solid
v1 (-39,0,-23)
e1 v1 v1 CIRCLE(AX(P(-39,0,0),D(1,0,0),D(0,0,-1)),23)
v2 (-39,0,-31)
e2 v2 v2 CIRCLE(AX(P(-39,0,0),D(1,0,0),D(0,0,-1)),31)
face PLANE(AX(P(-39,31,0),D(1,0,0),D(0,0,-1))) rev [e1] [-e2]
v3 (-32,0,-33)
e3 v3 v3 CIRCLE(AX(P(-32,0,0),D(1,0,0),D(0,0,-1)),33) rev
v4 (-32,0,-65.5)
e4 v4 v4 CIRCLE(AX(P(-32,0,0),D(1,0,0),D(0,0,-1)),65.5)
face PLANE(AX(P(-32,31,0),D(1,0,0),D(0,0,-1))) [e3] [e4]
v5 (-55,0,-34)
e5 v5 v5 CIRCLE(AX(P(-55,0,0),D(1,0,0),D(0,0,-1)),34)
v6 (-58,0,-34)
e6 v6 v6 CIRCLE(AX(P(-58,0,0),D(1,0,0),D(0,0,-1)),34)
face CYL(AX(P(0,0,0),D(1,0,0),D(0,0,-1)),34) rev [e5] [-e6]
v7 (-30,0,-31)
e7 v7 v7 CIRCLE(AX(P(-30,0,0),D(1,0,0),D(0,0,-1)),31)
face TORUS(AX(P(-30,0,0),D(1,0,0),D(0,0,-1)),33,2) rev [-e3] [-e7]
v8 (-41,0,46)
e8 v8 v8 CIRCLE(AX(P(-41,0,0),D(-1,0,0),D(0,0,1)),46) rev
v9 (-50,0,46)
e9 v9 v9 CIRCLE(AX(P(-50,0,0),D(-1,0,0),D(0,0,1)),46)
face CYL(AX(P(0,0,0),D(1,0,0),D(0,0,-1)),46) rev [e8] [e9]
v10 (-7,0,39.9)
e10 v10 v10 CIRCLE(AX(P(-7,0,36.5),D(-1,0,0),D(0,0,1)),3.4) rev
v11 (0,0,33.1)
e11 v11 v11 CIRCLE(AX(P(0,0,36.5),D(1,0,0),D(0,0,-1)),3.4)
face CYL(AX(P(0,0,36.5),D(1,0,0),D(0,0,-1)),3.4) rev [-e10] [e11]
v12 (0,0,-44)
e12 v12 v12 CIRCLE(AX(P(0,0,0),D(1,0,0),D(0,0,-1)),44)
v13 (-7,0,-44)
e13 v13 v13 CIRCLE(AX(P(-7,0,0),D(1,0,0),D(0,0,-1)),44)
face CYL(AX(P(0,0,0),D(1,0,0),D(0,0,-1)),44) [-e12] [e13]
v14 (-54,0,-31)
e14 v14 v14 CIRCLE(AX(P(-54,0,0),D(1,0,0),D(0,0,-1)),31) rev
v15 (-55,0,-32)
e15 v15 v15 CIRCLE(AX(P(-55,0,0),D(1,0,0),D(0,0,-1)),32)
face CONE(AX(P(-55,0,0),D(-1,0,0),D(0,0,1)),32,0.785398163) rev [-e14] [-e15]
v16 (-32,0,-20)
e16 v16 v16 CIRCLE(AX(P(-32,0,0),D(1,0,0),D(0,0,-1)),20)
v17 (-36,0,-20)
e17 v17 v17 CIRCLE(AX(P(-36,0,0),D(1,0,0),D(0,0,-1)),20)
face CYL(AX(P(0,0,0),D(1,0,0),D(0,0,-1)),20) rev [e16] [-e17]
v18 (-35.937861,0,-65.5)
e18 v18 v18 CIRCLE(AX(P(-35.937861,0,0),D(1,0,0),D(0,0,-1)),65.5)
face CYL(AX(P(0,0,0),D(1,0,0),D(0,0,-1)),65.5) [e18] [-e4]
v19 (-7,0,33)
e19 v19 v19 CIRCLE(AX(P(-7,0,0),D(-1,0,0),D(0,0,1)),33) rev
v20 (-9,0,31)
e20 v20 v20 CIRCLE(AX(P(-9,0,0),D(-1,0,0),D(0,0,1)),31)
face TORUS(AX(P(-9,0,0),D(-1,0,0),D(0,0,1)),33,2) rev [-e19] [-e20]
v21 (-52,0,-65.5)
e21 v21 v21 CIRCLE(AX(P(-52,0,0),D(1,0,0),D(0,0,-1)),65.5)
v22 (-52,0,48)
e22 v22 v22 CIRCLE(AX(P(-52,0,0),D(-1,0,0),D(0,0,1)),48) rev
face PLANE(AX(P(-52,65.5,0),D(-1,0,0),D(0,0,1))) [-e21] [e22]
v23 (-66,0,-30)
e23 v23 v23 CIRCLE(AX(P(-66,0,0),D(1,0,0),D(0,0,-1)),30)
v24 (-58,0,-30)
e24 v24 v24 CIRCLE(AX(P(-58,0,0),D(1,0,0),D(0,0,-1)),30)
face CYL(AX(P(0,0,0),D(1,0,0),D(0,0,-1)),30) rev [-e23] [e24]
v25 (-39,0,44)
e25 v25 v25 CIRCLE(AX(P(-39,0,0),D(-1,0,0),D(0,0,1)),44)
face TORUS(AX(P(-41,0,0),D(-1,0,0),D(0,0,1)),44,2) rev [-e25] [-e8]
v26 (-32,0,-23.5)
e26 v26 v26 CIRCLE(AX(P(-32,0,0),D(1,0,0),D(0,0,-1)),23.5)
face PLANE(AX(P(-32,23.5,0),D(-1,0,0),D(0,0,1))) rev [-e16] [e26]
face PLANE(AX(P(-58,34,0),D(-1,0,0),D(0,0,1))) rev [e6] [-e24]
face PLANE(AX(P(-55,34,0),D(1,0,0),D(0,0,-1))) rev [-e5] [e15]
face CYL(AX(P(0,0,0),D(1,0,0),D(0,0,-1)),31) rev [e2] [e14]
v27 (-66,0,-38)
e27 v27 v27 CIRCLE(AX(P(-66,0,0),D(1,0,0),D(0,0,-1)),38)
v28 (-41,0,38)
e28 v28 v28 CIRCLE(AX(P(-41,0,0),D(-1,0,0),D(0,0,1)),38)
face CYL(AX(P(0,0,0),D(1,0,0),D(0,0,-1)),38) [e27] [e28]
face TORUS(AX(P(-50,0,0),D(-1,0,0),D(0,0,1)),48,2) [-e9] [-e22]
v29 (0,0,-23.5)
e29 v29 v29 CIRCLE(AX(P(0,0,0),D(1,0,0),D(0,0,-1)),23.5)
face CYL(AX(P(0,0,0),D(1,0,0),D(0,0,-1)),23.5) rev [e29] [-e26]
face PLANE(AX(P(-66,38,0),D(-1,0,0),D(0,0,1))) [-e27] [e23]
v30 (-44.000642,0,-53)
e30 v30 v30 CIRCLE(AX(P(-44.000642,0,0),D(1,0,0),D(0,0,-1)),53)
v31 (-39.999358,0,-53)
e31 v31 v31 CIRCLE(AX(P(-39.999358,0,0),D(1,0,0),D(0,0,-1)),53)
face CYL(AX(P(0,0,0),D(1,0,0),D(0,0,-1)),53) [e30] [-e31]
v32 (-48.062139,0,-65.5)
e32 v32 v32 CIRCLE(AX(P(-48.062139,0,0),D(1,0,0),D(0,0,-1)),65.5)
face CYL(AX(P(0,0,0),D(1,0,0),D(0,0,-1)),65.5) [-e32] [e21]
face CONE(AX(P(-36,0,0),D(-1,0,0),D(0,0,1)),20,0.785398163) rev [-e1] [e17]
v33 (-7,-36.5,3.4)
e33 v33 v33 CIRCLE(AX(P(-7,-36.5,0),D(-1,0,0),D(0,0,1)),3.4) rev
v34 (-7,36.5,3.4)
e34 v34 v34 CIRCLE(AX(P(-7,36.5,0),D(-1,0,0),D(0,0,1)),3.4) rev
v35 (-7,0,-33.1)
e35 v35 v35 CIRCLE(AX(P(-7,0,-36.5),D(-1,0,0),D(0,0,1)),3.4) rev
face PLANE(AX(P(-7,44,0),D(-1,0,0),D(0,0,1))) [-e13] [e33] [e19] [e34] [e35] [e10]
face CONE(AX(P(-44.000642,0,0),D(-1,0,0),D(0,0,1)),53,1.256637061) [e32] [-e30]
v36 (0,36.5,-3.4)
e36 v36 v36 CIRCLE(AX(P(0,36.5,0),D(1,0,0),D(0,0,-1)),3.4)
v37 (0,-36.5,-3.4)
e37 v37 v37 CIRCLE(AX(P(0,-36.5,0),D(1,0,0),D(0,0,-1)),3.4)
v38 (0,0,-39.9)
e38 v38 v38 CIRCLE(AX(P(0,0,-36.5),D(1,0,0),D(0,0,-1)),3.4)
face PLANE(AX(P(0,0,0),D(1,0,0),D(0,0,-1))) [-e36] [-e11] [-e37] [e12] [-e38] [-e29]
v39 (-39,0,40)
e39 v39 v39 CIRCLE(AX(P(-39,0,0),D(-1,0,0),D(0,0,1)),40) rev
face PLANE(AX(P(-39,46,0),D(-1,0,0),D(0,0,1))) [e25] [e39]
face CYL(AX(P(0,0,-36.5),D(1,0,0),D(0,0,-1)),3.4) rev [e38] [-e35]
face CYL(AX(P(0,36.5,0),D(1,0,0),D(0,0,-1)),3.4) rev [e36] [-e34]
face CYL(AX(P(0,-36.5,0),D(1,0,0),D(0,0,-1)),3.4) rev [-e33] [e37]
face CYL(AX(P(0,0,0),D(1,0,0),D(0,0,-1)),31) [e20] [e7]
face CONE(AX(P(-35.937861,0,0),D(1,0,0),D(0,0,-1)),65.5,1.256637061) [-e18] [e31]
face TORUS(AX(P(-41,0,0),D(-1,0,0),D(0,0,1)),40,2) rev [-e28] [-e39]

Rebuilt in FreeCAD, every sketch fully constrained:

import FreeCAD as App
import Part
import Sketcher
from FreeCAD import Vector
Q = App.Units.Quantity


def edges_at(feature, points):
    """Names of the edges that pass closest to the given points."""
    edges = feature.Shape.Edges
    near = lambda p: min(range(len(edges)), key=lambda i: edges[i].distToShape(Part.Vertex(*p))[0])
    return sorted({f"Edge{near(p) + 1}" for p in points})

doc = App.newDocument("Part")
body = doc.addObject("PartDesign::Body", "Body")

sketch1 = body.newObject("Sketcher::SketchObject", "Sketch")
sketch1.AttachmentSupport = (doc.getObject("XY_Plane"), [""])
sketch1.MapMode = "FlatFace"
sketch1.addGeometry([
    Part.LineSegment(Vector(0, 0, 0), Vector(0, 44, 0)),
    Part.LineSegment(Vector(0, 44, 0), Vector(-7, 44, 0)),
    Part.LineSegment(Vector(-7, 44, 0), Vector(-7, 31, 0)),
    Part.LineSegment(Vector(-7, 31, 0), Vector(-32, 31, 0)),
    Part.LineSegment(Vector(-32, 31, 0), Vector(-32, 65.5, 0)),
    Part.LineSegment(Vector(-32, 65.5, 0), Vector(-35.9, 65.5, 0)),
    Part.LineSegment(Vector(-35.9, 65.5, 0), Vector(-40, 53, 0)),
    Part.LineSegment(Vector(-40, 53, 0), Vector(-44, 53, 0)),
    Part.LineSegment(Vector(-44, 53, 0), Vector(-48.1, 65.5, 0)),
    Part.LineSegment(Vector(-48.1, 65.5, 0), Vector(-52, 65.5, 0)),
    Part.LineSegment(Vector(-52, 65.5, 0), Vector(-52, 46, 0)),
    Part.LineSegment(Vector(-52, 46, 0), Vector(-39, 46, 0)),
    Part.LineSegment(Vector(-39, 46, 0), Vector(-39, 38, 0)),
    Part.LineSegment(Vector(-39, 38, 0), Vector(-66, 38, 0)),
    Part.LineSegment(Vector(-66, 38, 0), Vector(-66, 0, 0)),
    Part.LineSegment(Vector(-66, 0, 0), Vector(0, 0, 0)),
], False)
sketch1.addConstraint([
    Sketcher.Constraint("Coincident", 0, 2, 1, 1),
    Sketcher.Constraint("Coincident", 1, 2, 2, 1),
    Sketcher.Constraint("Coincident", 2, 2, 3, 1),
    Sketcher.Constraint("Coincident", 3, 2, 4, 1),
    Sketcher.Constraint("Coincident", 4, 2, 5, 1),
    Sketcher.Constraint("Coincident", 5, 2, 6, 1),
    Sketcher.Constraint("Coincident", 6, 2, 7, 1),
    Sketcher.Constraint("Coincident", 7, 2, 8, 1),
    Sketcher.Constraint("Coincident", 8, 2, 9, 1),
    Sketcher.Constraint("Coincident", 9, 2, 10, 1),
    Sketcher.Constraint("Coincident", 10, 2, 11, 1),
    Sketcher.Constraint("Coincident", 11, 2, 12, 1),
    Sketcher.Constraint("Coincident", 12, 2, 13, 1),
    Sketcher.Constraint("Coincident", 13, 2, 14, 1),
    Sketcher.Constraint("Coincident", 14, 2, 15, 1),
    Sketcher.Constraint("Coincident", 15, 2, 0, 1),
    Sketcher.Constraint("Vertical", 0),
    Sketcher.Constraint("Horizontal", 1),
    Sketcher.Constraint("Vertical", 2),
    Sketcher.Constraint("Horizontal", 3),
    Sketcher.Constraint("Vertical", 4),
    Sketcher.Constraint("Horizontal", 5),
    Sketcher.Constraint("Horizontal", 7),
    Sketcher.Constraint("Horizontal", 9),
    Sketcher.Constraint("Vertical", 10),
    Sketcher.Constraint("Horizontal", 11),
    Sketcher.Constraint("Vertical", 12),
    Sketcher.Constraint("Horizontal", 13),
    Sketcher.Constraint("Vertical", 14),
    Sketcher.Constraint("Horizontal", 15),
    Sketcher.Constraint("Coincident", 15, 2, -1, 1),
    Sketcher.Constraint("Horizontal", 5, 2, 8, 2),
    Sketcher.Constraint("Equal", 5, 9),
    Sketcher.Constraint("Equal", 11, 2),
    Sketcher.Constraint("Equal", 6, 8),
    Sketcher.Constraint("DistanceX", 1, 2, 1, 1, 7.0),
    Sketcher.Constraint("DistanceX", 3, 2, 3, 1, 25.0),
    Sketcher.Constraint("DistanceX", 11, 1, 11, 2, 13.0),
    Sketcher.Constraint("DistanceX", 13, 2, 13, 1, 27.0),
    Sketcher.Constraint("DistanceX", 15, 1, 15, 2, 66.0),
    Sketcher.Constraint("DistanceY", 0, 1, 0, 2, 44.0),
    Sketcher.Constraint("DistanceY", 12, 2, 12, 1, 8.0),
    Sketcher.Constraint("DistanceY", 14, 2, 14, 1, 38.0),
    Sketcher.Constraint("Angle", 6, Q("-108 deg")),
    Sketcher.Constraint("DistanceY", 4, 1, 4, 2, 34.5),
    Sketcher.Constraint("DistanceY", -1, 1, 6, 2, 53.0),
    Sketcher.Constraint("DistanceX", 5, 2, 5, 1, 3.937861),
])
revolution = body.newObject("PartDesign::Revolution", "Revolution")
revolution.Profile = sketch1
revolution.ReferenceAxis = (sketch1, ["H_Axis"])
revolution.Angle = 360

sketch2 = body.newObject("Sketcher::SketchObject", "Sketch001")
sketch2.AttachmentSupport = (doc.getObject("XY_Plane"), [""])
sketch2.MapMode = "FlatFace"
sketch2.addGeometry([
    Part.LineSegment(Vector(0, 0, 0), Vector(0, 23.5, 0)),
    Part.LineSegment(Vector(0, 23.5, 0), Vector(-32, 23.5, 0)),
    Part.LineSegment(Vector(-32, 23.5, 0), Vector(-32, 20, 0)),
    Part.LineSegment(Vector(-32, 20, 0), Vector(-36, 20, 0)),
    Part.LineSegment(Vector(-36, 20, 0), Vector(-39, 23, 0)),
    Part.LineSegment(Vector(-39, 23, 0), Vector(-39, 31, 0)),
    Part.LineSegment(Vector(-39, 31, 0), Vector(-55, 31, 0)),
    Part.LineSegment(Vector(-55, 31, 0), Vector(-55, 34, 0)),
    Part.LineSegment(Vector(-55, 34, 0), Vector(-58, 34, 0)),
    Part.LineSegment(Vector(-58, 34, 0), Vector(-58, 30, 0)),
    Part.LineSegment(Vector(-58, 30, 0), Vector(-66, 30, 0)),
    Part.LineSegment(Vector(-66, 30, 0), Vector(-66, 0, 0)),
    Part.LineSegment(Vector(-66, 0, 0), Vector(0, 0, 0)),
], False)
sketch2.addConstraint([
    Sketcher.Constraint("Coincident", 0, 2, 1, 1),
    Sketcher.Constraint("Coincident", 1, 2, 2, 1),
    Sketcher.Constraint("Coincident", 2, 2, 3, 1),
    Sketcher.Constraint("Coincident", 3, 2, 4, 1),
    Sketcher.Constraint("Coincident", 4, 2, 5, 1),
    Sketcher.Constraint("Coincident", 5, 2, 6, 1),
    Sketcher.Constraint("Coincident", 6, 2, 7, 1),
    Sketcher.Constraint("Coincident", 7, 2, 8, 1),
    Sketcher.Constraint("Coincident", 8, 2, 9, 1),
    Sketcher.Constraint("Coincident", 9, 2, 10, 1),
    Sketcher.Constraint("Coincident", 10, 2, 11, 1),
    Sketcher.Constraint("Coincident", 11, 2, 12, 1),
    Sketcher.Constraint("Coincident", 12, 2, 0, 1),
    Sketcher.Constraint("Vertical", 0),
    Sketcher.Constraint("Horizontal", 1),
    Sketcher.Constraint("Vertical", 2),
    Sketcher.Constraint("Horizontal", 3),
    Sketcher.Constraint("Vertical", 5),
    Sketcher.Constraint("Horizontal", 6),
    Sketcher.Constraint("Vertical", 7),
    Sketcher.Constraint("Horizontal", 8),
    Sketcher.Constraint("Vertical", 9),
    Sketcher.Constraint("Horizontal", 10),
    Sketcher.Constraint("Vertical", 11),
    Sketcher.Constraint("Horizontal", 12),
    Sketcher.Constraint("Coincident", 12, 2, -1, 1),
    Sketcher.Constraint("Equal", 10, 5),
    Sketcher.Constraint("Equal", 8, 7),
    Sketcher.Constraint("Equal", 3, 9),
    Sketcher.Constraint("DistanceX", 1, 2, 1, 1, 32.0),
    Sketcher.Constraint("DistanceX", 3, 2, 3, 1, 4.0),
    Sketcher.Constraint("DistanceX", 6, 2, 6, 1, 16.0),
    Sketcher.Constraint("DistanceX", 8, 2, 8, 1, 3.0),
    Sketcher.Constraint("DistanceX", 10, 2, 10, 1, 8.0),
    Sketcher.Constraint("DistanceX", 12, 1, 12, 2, 66.0),
    Sketcher.Constraint("DistanceY", 11, 2, 11, 1, 30.0),
    Sketcher.Constraint("Angle", 4, Q("135 deg")),
    Sketcher.Constraint("DistanceY", 0, 1, 0, 2, 23.5),
])
groove = body.newObject("PartDesign::Groove", "Groove")
groove.Profile = sketch2
groove.ReferenceAxis = (sketch2, ["H_Axis"])
groove.Angle = 360
doc.recompute()

chamfer = body.newObject("PartDesign::Chamfer", "Chamfer")
chamfer.Base = (groove, edges_at(groove, [(-55, 0, 31)]))
chamfer.Size = 1
doc.recompute()

fillet = body.newObject("PartDesign::Fillet", "Fillet")
fillet.Base = (chamfer, edges_at(chamfer, [
    (-39, 0, 38),
    (-39, 0, 46),
    (-52, 0, 46),
    (-32, 0, 31),
    (-7, 0, 31),
]))
fillet.Radius = 2

sketch3 = body.newObject("Sketcher::SketchObject", "Sketch002")
sketch3.AttachmentSupport = (doc.getObject("XZ_Plane"), [""])
sketch3.MapMode = "FlatFace"
sketch3.AttachmentOffset = App.Placement(Vector(0, 0, -36.5), App.Rotation())
sketch3.addGeometry([
    Part.LineSegment(Vector(-9, 0, 0), Vector(0, 0, 0)),
    Part.LineSegment(Vector(0, 0, 0), Vector(0, -3.4, 0)),
    Part.LineSegment(Vector(0, -3.4, 0), Vector(-7, -3.4, 0)),
    Part.LineSegment(Vector(-7, -3.4, 0), Vector(-9, 0, 0)),
], False)
sketch3.addConstraint([
    Sketcher.Constraint("Coincident", 0, 2, 1, 1),
    Sketcher.Constraint("Coincident", 1, 2, 2, 1),
    Sketcher.Constraint("Coincident", 2, 2, 3, 1),
    Sketcher.Constraint("Coincident", 3, 2, 0, 1),
    Sketcher.Constraint("Horizontal", 0),
    Sketcher.Constraint("Vertical", 1),
    Sketcher.Constraint("Horizontal", 2),
    Sketcher.Constraint("Coincident", 0, 2, -1, 1),
    Sketcher.Constraint("DistanceX", 2, 2, 2, 1, 7.0),
    Sketcher.Constraint("Angle", 3, Q("121 deg")),
    Sketcher.Constraint("DistanceY", 1, 2, 1, 1, 3.4),
])
groove2 = body.newObject("PartDesign::Groove", "Groove001")
groove2.Profile = sketch3
groove2.ReferenceAxis = (sketch3, ["H_Axis"])
groove2.Angle = 360
doc.recompute()

polarpattern = body.newObject("PartDesign::PolarPattern", "PolarPattern")
polarpattern.Originals = [groove2]
polarpattern.Axis = (doc.getObject("X_Axis"), [""])
polarpattern.Angle = 360
polarpattern.Occurrences = 4
body.Tip = polarpattern

doc.recompute()
